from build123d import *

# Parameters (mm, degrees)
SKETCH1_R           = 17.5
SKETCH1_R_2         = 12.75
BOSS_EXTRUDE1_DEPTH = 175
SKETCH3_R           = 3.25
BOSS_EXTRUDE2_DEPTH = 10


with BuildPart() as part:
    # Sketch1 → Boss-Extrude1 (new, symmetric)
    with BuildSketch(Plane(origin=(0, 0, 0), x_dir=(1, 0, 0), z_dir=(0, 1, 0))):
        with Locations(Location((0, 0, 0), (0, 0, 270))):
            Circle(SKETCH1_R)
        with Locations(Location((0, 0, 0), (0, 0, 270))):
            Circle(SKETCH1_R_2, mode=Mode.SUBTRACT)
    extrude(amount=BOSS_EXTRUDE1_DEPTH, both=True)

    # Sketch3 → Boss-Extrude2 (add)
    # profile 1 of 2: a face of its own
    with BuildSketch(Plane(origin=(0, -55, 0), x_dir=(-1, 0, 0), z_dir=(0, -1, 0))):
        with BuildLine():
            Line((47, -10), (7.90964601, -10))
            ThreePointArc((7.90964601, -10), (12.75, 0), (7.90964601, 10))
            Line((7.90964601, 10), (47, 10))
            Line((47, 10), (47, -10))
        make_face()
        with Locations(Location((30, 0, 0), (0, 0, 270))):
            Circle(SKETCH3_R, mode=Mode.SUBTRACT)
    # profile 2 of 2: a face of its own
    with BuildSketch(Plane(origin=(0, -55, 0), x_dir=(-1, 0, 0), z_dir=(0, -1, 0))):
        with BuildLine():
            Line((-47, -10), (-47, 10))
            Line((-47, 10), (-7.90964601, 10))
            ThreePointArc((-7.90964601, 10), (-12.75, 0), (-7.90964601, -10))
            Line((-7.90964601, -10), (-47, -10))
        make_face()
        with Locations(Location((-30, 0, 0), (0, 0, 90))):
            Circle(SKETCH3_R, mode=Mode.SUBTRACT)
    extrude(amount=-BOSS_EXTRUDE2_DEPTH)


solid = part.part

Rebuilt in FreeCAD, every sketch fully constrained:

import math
import FreeCAD as App
import Part
import Sketcher

V = App.Vector
Q = App.Units.Quantity

doc = App.newDocument("Part")
body = doc.addObject("PartDesign::Body", "Body")

# Sketch on XZ plane
sketch1 = body.newObject("Sketcher::SketchObject", "Sketch")
sketch1.AttachmentSupport = (doc.getObject("XZ_Plane"), [""])
sketch1.MapMode = "FlatFace"
sketch1.addGeometry([
    Part.Circle(V(0, 0, 0), V(0, 0, 1), 18),
    Part.Circle(V(0, 0, 0), V(0, 0, 1), 13),
], False)
sketch1.addConstraint([
    Sketcher.Constraint("Coincident", 0, 3, -1, 1),
    Sketcher.Constraint("Coincident", 1, 3, -1, 1),
    Sketcher.Constraint("Diameter", 0, Q("35 mm")),
    Sketcher.Constraint("Diameter", 1, Q("25.5 mm")),
])
pad1 = body.newObject("PartDesign::Pad", "Pad")
pad1.Profile = sketch1
pad1.Length = 350
pad1.Midplane = True

# Sketch on XZ plane
sketch2 = body.newObject("Sketcher::SketchObject", "Sketch001")
sketch2.AttachmentSupport = (doc.getObject("XZ_Plane"), [""])
sketch2.MapMode = "FlatFace"
sketch2.AttachmentOffset = App.Placement(V(0, 0, 55), App.Rotation())
sketch2.addGeometry([
    Part.LineSegment(V(-7.9, 10, 0), V(-47, 10, 0)),  # 0
    Part.LineSegment(V(-47, 10, 0), V(-47, -10, 0)),  # 1
    Part.LineSegment(V(-47, -10, 0), V(-7.9, -10, 0)),  # 2
    Part.ArcOfCircle(Part.Circle(V(0, 0, 0), V(0, 0, 1), 12.8), math.radians(128), math.radians(232)),  # 3
    Part.Circle(V(-30, 0, 0), V(0, 0, 1), 3.2),  # 4
    Part.LineSegment(V(47, -10, 0), V(47, 10, 0)),  # 5
    Part.LineSegment(V(47, 10, 0), V(7.9, 10, 0)),  # 6
    Part.ArcOfCircle(Part.Circle(V(0, 0, 0), V(0, 0, 1), 12.8), math.radians(-52), math.radians(52)),  # 7
    Part.LineSegment(V(7.9, -10, 0), V(47, -10, 0)),  # 8
    Part.Circle(V(30, 0, 0), V(0, 0, 1), 3.2),  # 9
], False)
sketch2.addConstraint([
    Sketcher.Constraint("Coincident", 0, 2, 1, 1),
    Sketcher.Constraint("Coincident", 1, 2, 2, 1),
    Sketcher.Constraint("Coincident", 2, 2, 3, 2),
    Sketcher.Constraint("Coincident", 3, 1, 0, 1),
    Sketcher.Constraint("Coincident", 5, 2, 6, 1),
    Sketcher.Constraint("Coincident", 6, 2, 7, 2),
    Sketcher.Constraint("Coincident", 7, 1, 8, 1),
    Sketcher.Constraint("Coincident", 8, 2, 5, 1),
    Sketcher.Constraint("Horizontal", 0),
    Sketcher.Constraint("Vertical", 1),
    Sketcher.Constraint("Horizontal", 2),
    Sketcher.Constraint("Vertical", 5),
    Sketcher.Constraint("Horizontal", 6),
    Sketcher.Constraint("Horizontal", 8),
    Sketcher.Constraint("Coincident", 3, 3, -1, 1),
    Sketcher.Constraint("Coincident", 7, 3, -1, 1),
    Sketcher.Constraint("Equal", 3, 7),
    Sketcher.Constraint("Equal", 4, 9),
    Sketcher.Constraint("Symmetric", 4, 3, 9, 3, -1, 1),
    Sketcher.Constraint("Symmetric", 1, 2, 5, 2, -1, 1),
    Sketcher.Constraint("PointOnObject", 4, 3, -1),
    Sketcher.Constraint("Horizontal", 3, 1, 5, 2),
    Sketcher.Constraint("Horizontal", 2, 2, 7, 1),
    Sketcher.Constraint("Diameter", 4, Q("6.5 mm")),
    Sketcher.Constraint("DistanceY", 1, 2, 1, 1, Q("20 mm")),
    Sketcher.Constraint("Radius", 3, Q("12.75 mm")),
    Sketcher.Constraint("DistanceX", 4, 3, -1, 1, Q("30 mm")),
    Sketcher.Constraint("DistanceX", 0, 2, -1, 1, Q("47 mm")),
])
pad2 = body.newObject("PartDesign::Pad", "Pad001")
pad2.Profile = sketch2
pad2.Length = 10
pad2.Reversed = True

doc.recompute()
